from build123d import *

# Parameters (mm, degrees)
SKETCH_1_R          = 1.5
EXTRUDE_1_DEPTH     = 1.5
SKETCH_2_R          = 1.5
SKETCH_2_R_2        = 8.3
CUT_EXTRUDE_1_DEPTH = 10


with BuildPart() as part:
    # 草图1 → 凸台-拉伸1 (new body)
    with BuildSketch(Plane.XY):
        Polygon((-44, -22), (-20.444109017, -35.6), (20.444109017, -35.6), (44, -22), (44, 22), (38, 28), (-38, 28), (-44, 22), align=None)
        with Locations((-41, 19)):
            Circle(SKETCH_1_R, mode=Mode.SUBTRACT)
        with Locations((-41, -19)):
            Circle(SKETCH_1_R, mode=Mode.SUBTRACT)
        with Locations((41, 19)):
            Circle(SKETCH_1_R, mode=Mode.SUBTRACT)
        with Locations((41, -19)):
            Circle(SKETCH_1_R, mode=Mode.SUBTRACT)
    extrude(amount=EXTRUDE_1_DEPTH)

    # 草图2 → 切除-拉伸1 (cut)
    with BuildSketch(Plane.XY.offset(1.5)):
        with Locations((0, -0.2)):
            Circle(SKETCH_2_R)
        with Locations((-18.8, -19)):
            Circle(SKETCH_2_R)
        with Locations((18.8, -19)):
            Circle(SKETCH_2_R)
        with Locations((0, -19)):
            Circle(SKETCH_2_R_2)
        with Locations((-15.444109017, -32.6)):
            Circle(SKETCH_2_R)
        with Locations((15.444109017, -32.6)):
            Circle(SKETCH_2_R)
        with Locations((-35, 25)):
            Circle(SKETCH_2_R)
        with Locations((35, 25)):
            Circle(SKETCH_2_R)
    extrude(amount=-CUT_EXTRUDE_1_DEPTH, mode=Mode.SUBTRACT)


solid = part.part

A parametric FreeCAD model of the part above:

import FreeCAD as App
import Part
import Sketcher

V = App.Vector
Q = App.Units.Quantity


def add_polygon(sketch, points):
    """Adds a closed chain of lines whose ends are joined by coincident constraints."""
    first, n = sketch.GeometryCount, len(points)
    for a, b in zip(points, points[1:] + points[:1]):
        sketch.addGeometry(Part.LineSegment(App.Vector(*a, 0), App.Vector(*b, 0)), False)
    for i in range(n):
        sketch.addConstraint(Sketcher.Constraint("Coincident", first + i, 2, first + (i + 1) % n, 1))

doc = App.newDocument("Part")
params = doc.addObject("Spreadsheet::Sheet", "Params")
for row, (alias, value) in enumerate([
    ("sketch1_diameter", "3 mm"),
    ("sketch1_width", "76 mm"),
    ("sketch1_height", "44 mm"),
    ("sketch1_length", "27.2 mm"),
    ("pad1_length", "1.5 mm"),
    ("sketch2_diameter", "3 mm"),
    ("sketch2_diameter2", "16.6 mm"),
    ("pocket1_length", "10 mm"),
], start=1):
    params.set(f"A{row}", alias)
    params.set(f"B{row}", "=" + value)
    params.setAlias(f"B{row}", alias)

body = doc.addObject("PartDesign::Body", "Body")

# Sketch on XY plane
sketch1 = body.newObject("Sketcher::SketchObject", "Sketch")
sketch1.AttachmentSupport = (doc.getObject("XY_Plane"), [""])
sketch1.MapMode = "FlatFace"
add_polygon(sketch1, [(-44, -22), (-20.4, -35.6), (20.4, -35.6), (44, -22), (44, 22), (38, 28), (-38, 28), (-44, 22)])  # lines 0-7
sketch1.addGeometry(Part.Circle(V(-41, -19, 0), V(0, 0, 1), 1.5), False)  # 8
sketch1.addGeometry(Part.Circle(V(41, -19, 0), V(0, 0, 1), 1.5), False)  # 9
sketch1.addGeometry(Part.Circle(V(-41, 19, 0), V(0, 0, 1), 1.5), False)  # 10
sketch1.addGeometry(Part.Circle(V(41, 19, 0), V(0, 0, 1), 1.5), False)  # 11
sketch1.addConstraint(Sketcher.Constraint("Horizontal", 1))
sketch1.addConstraint(Sketcher.Constraint("Vertical", 3))
sketch1.addConstraint(Sketcher.Constraint("Horizontal", 5))
sketch1.addConstraint(Sketcher.Constraint("Vertical", 7))
sketch1.addConstraint(Sketcher.Constraint("Equal", 8, 9))
sketch1.addConstraint(Sketcher.Constraint("Equal", 9, 10))
sketch1.addConstraint(Sketcher.Constraint("Equal", 10, 11))
sketch1.addConstraint(Sketcher.Constraint("Symmetric", 9, 3, 10, 3, -1, 1))
sketch1.addConstraint(Sketcher.Constraint("Symmetric", 8, 3, 11, 3, -1, 1))
sketch1.addConstraint(Sketcher.Constraint("Symmetric", 2, 2, 6, 2, -1, 1))
sketch1.addConstraint(Sketcher.Constraint("Symmetric", 8, 3, 9, 3, -2))
sketch1.addConstraint(Sketcher.Constraint("Perpendicular", 4, 6))
sketch1.addConstraint(Sketcher.Constraint("Horizontal", 3, 2, 6, 2))
sketch1.addConstraint(Sketcher.Constraint("Horizontal", 2, 2, 7, 2))
sketch1.addConstraint(Sketcher.Constraint("Equal", 0, 2))
sketch1.addConstraint(Sketcher.Constraint("Equal", 4, 6))
sketch1.addConstraint(Sketcher.Constraint("Diameter", 8, Q("3 mm")))
sketch1.addConstraint(Sketcher.Constraint("DistanceX", 5, 2, 5, 1, Q("76 mm")))
sketch1.addConstraint(Sketcher.Constraint("DistanceY", 3, 1, 3, 2, Q("44 mm")))
sketch1.addConstraint(Sketcher.Constraint("Angle", 0, Q("-30 deg")))
sketch1.addConstraint(Sketcher.Constraint("DistanceX", 8, 3, -1, 1, Q("41 mm")))
sketch1.addConstraint(Sketcher.Constraint("DistanceY", 8, 3, -1, 1, Q("19 mm")))
sketch1.addConstraint(Sketcher.Constraint("DistanceX", -1, 1, 2, 2, Q("44 mm")))
sketch1.addConstraint(Sketcher.Constraint("Distance", 0, Q("27.2 mm")))
sketch1.setExpression("Constraints[24]", "Params.sketch1_diameter")
sketch1.setExpression("Constraints[25]", "Params.sketch1_width")
sketch1.setExpression("Constraints[26]", "Params.sketch1_height")
sketch1.setExpression("Constraints[31]", "Params.sketch1_length")
pad1 = body.newObject("PartDesign::Pad", "Pad")
pad1.Profile = sketch1
pad1.setExpression("Length", "Params.pad1_length")

# Sketch on XY plane
sketch2 = body.newObject("Sketcher::SketchObject", "Sketch001")
sketch2.AttachmentSupport = (doc.getObject("XY_Plane"), [""])
sketch2.MapMode = "FlatFace"
sketch2.AttachmentOffset = App.Placement(V(0, 0, 1.5), App.Rotation())
sketch2.addGeometry(Part.Circle(V(0, -0.2, 0), V(0, 0, 1), 1.5), False)
sketch2.addGeometry(Part.Circle(V(-18.8, -19, 0), V(0, 0, 1), 1.5), False)
sketch2.addGeometry(Part.Circle(V(18.8, -19, 0), V(0, 0, 1), 1.5), False)
sketch2.addGeometry(Part.Circle(V(0, -19, 0), V(0, 0, 1), 8.3), False)
sketch2.addGeometry(Part.Circle(V(-15.4, -32.6, 0), V(0, 0, 1), 1.5), False)
sketch2.addGeometry(Part.Circle(V(15.4, -32.6, 0), V(0, 0, 1), 1.5), False)
sketch2.addGeometry(Part.Circle(V(-35, 25, 0), V(0, 0, 1), 1.5), False)
sketch2.addGeometry(Part.Circle(V(35, 25, 0), V(0, 0, 1), 1.5), False)
sketch2.addConstraint(Sketcher.Constraint("Equal", 0, 1))
sketch2.addConstraint(Sketcher.Constraint("Equal", 1, 2))
sketch2.addConstraint(Sketcher.Constraint("Equal", 2, 4))
sketch2.addConstraint(Sketcher.Constraint("Equal", 4, 5))
sketch2.addConstraint(Sketcher.Constraint("Equal", 5, 6))
sketch2.addConstraint(Sketcher.Constraint("Equal", 6, 7))
sketch2.addConstraint(Sketcher.Constraint("Symmetric", 1, 3, 2, 3, -2))
sketch2.addConstraint(Sketcher.Constraint("Symmetric", 4, 3, 5, 3, -2))
sketch2.addConstraint(Sketcher.Constraint("Symmetric", 6, 3, 7, 3, -2))
sketch2.addConstraint(Sketcher.Constraint("PointOnObject", 0, 3, -2))
sketch2.addConstraint(Sketcher.Constraint("PointOnObject", 3, 3, -2))
sketch2.addConstraint(Sketcher.Constraint("Horizontal", 2, 3, 3, 3))
sketch2.addConstraint(Sketcher.Constraint("Diameter", 0, Q("3 mm")))
sketch2.addConstraint(Sketcher.Constraint("Diameter", 3, Q("16.6 mm")))
sketch2.addConstraint(Sketcher.Constraint("DistanceY", 1, 3, -1, 1, Q("19 mm")))
sketch2.addConstraint(Sketcher.Constraint("DistanceX", 6, 3, -1, 1, Q("35 mm")))
sketch2.addConstraint(Sketcher.Constraint("DistanceY", -1, 1, 6, 3, Q("25 mm")))
sketch2.addConstraint(Sketcher.Constraint("DistanceY", 0, 3, -1, 1, Q("0.2 mm")))
sketch2.addConstraint(Sketcher.Constraint("DistanceX", 1, 3, -1, 1, Q("18.8 mm")))
sketch2.addConstraint(Sketcher.Constraint("DistanceY", 4, 3, -1, 1, Q("32.6 mm")))
sketch2.addConstraint(Sketcher.Constraint("DistanceX", 4, 3, -1, 1, Q("15.444109 mm")))
sketch2.setExpression("Constraints[12]", "Params.sketch2_diameter")
sketch2.setExpression("Constraints[13]", "Params.sketch2_diameter2")
pocket1 = body.newObject("PartDesign::Pocket", "Pocket")
pocket1.Profile = sketch2
pocket1.setExpression("Length", "Params.pocket1_length")

doc.recompute()
